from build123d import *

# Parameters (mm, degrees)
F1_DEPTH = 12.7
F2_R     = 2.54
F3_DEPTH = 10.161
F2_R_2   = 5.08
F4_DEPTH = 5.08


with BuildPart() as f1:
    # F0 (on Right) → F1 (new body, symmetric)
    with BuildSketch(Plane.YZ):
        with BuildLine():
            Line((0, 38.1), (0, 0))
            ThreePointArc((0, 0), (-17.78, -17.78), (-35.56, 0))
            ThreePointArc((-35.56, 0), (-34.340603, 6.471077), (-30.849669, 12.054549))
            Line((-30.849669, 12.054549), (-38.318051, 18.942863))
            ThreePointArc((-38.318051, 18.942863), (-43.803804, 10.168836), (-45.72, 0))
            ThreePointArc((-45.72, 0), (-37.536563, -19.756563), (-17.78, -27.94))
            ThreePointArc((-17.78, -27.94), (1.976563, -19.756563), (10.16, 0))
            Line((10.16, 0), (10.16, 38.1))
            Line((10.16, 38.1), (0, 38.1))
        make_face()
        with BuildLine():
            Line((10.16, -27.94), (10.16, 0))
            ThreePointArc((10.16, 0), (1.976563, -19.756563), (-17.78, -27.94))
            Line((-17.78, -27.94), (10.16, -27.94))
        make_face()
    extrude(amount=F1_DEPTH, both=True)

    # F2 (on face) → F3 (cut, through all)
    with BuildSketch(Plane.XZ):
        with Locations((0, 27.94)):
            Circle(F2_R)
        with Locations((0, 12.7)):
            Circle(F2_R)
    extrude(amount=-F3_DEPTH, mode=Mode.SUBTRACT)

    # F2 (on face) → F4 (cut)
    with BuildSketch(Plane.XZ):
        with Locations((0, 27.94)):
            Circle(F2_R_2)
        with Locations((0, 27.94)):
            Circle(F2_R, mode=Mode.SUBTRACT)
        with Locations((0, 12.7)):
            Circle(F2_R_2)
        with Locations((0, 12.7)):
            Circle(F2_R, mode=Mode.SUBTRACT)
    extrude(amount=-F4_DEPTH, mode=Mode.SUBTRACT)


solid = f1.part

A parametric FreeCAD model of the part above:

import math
import FreeCAD as App
import Part
import Sketcher
from FreeCAD import Vector
Q = App.Units.Quantity

doc = App.newDocument("Part")
body = doc.addObject("PartDesign::Body", "Body")

# Sketch on YZ plane
sketch1 = body.newObject("Sketcher::SketchObject", "Sketch")
sketch1.AttachmentSupport = (doc.getObject("YZ_Plane"), [""])
sketch1.MapMode = "FlatFace"
sketch1.addGeometry([
    Part.LineSegment(Vector(0, 38, 0), Vector(0, 0, 0)),  # 0
    Part.ArcOfCircle(Part.Circle(Vector(-18, 0, 0), Vector(0, 0, 1), 18), math.radians(180), math.radians(360)),  # 1
    Part.ArcOfCircle(Part.Circle(Vector(-18, 0, 0), Vector(0, 0, 1), 18), math.radians(137), math.radians(180)),  # 2
    Part.LineSegment(Vector(-31, 12, 0), Vector(-38, 19, 0)),  # 3
    Part.ArcOfCircle(Part.Circle(Vector(-18, 0, 0), Vector(0, 0, 1), 28), math.radians(137), math.radians(180)),  # 4
    Part.ArcOfCircle(Part.Circle(Vector(-18, 0, 0), Vector(0, 0, 1), 28), math.radians(-180), math.radians(-90)),  # 5
    Part.LineSegment(Vector(-18, -28, 0), Vector(10, -28, 0)),  # 6
    Part.LineSegment(Vector(10, -28, 0), Vector(10, 38, 0)),  # 7
    Part.LineSegment(Vector(10, 38, 0), Vector(0, 38, 0)),  # 8
], False)
sketch1.addConstraint([
    Sketcher.Constraint("Tangent", 0, 2, 1, 2),
    Sketcher.Constraint("Tangent", 1, 1, 2, 2),
    Sketcher.Constraint("Coincident", 2, 1, 3, 1),
    Sketcher.Constraint("Coincident", 3, 2, 4, 1),
    Sketcher.Constraint("Tangent", 4, 2, 5, 1),
    Sketcher.Constraint("Tangent", 5, 2, 6, 1),
    Sketcher.Constraint("Coincident", 6, 2, 7, 1),
    Sketcher.Constraint("Coincident", 7, 2, 8, 1),
    Sketcher.Constraint("Coincident", 8, 2, 0, 1),
    Sketcher.Constraint("Vertical", 0),
    Sketcher.Constraint("Horizontal", 6),
    Sketcher.Constraint("Vertical", 7),
    Sketcher.Constraint("Horizontal", 8),
    Sketcher.Constraint("Coincident", 0, 2, -1, 1),
    Sketcher.Constraint("Coincident", 4, 3, 1, 3),
    Sketcher.Constraint("Equal", 4, 5),
    Sketcher.Constraint("PointOnObject", 1, 1, -1),
    Sketcher.Constraint("PointOnObject", 4, 2, -1),
    Sketcher.Constraint("Radius", 1, Q("0.7 in")),
    Sketcher.Constraint("Radius", 2, Q("0.6999999 in")),
    Sketcher.Constraint("Radius", 4, Q("1.1 in")),
    Sketcher.Constraint("DistanceX", 6, 1, 6, 2, Q("1.1 in")),
    Sketcher.Constraint("DistanceY", 0, 2, 0, 1, Q("1.5 in")),
    Sketcher.Constraint("DistanceX", 2, 1, -1, 1, Q("30.849669 mm")),
    Sketcher.Constraint("DistanceX", 3, 2, -1, 1, Q("38.318051 mm")),
])
pad1 = body.newObject("PartDesign::Pad", "Pad")
pad1.Profile = sketch1
pad1.Length = Q("1 in")
pad1.Midplane = True

# Sketch on XZ plane
sketch2 = body.newObject("Sketcher::SketchObject", "Sketch001")
sketch2.AttachmentSupport = (doc.getObject("XZ_Plane"), [""])
sketch2.MapMode = "FlatFace"
sketch2.addGeometry([
    Part.Circle(Vector(0, 27.9, 0), Vector(0, 0, 1), 2.5),
    Part.Circle(Vector(0, 12.7, 0), Vector(0, 0, 1), 2.5),
], False)
sketch2.addConstraint([
    Sketcher.Constraint("Equal", 0, 1),
    Sketcher.Constraint("PointOnObject", 0, 3, -2),
    Sketcher.Constraint("PointOnObject", 1, 3, -2),
    Sketcher.Constraint("Diameter", 0, Q("0.2 in")),
    Sketcher.Constraint("DistanceY", -1, 1, 0, 3, Q("1.1 in")),
    Sketcher.Constraint("DistanceY", -1, 1, 1, 3, Q("0.5 in")),
])
pocket1 = body.newObject("PartDesign::Pocket", "Pocket")
pocket1.Profile = sketch2
pocket1.Type = "ThroughAll"

# Sketch on XZ plane
sketch3 = body.newObject("Sketcher::SketchObject", "Sketch002")
sketch3.AttachmentSupport = (doc.getObject("XZ_Plane"), [""])
sketch3.MapMode = "FlatFace"
sketch3.addGeometry([
    Part.Circle(Vector(0, 27.9, 0), Vector(0, 0, 1), 5.1),
    Part.Circle(Vector(0, 27.9, 0), Vector(0, 0, 1), 2.5),
    Part.Circle(Vector(0, 12.7, 0), Vector(0, 0, 1), 5.1),
    Part.Circle(Vector(0, 12.7, 0), Vector(0, 0, 1), 2.5),
], False)
sketch3.addConstraint([
    Sketcher.Constraint("Coincident", 1, 3, 0, 3),
    Sketcher.Constraint("Coincident", 3, 3, 2, 3),
    Sketcher.Constraint("Equal", 0, 2),
    Sketcher.Constraint("Equal", 1, 3),
    Sketcher.Constraint("PointOnObject", 0, 3, -2),
    Sketcher.Constraint("PointOnObject", 2, 3, -2),
    Sketcher.Constraint("Diameter", 0, Q("0.4 in")),
    Sketcher.Constraint("Diameter", 1, Q("0.2 in")),
    Sketcher.Constraint("DistanceY", -1, 1, 0, 3, Q("1.1 in")),
    Sketcher.Constraint("DistanceY", -1, 1, 2, 3, Q("0.5 in")),
])
pocket2 = body.newObject("PartDesign::Pocket", "Pocket001")
pocket2.Profile = sketch3
pocket2.Length = Q("0.2 in")

doc.recompute()
